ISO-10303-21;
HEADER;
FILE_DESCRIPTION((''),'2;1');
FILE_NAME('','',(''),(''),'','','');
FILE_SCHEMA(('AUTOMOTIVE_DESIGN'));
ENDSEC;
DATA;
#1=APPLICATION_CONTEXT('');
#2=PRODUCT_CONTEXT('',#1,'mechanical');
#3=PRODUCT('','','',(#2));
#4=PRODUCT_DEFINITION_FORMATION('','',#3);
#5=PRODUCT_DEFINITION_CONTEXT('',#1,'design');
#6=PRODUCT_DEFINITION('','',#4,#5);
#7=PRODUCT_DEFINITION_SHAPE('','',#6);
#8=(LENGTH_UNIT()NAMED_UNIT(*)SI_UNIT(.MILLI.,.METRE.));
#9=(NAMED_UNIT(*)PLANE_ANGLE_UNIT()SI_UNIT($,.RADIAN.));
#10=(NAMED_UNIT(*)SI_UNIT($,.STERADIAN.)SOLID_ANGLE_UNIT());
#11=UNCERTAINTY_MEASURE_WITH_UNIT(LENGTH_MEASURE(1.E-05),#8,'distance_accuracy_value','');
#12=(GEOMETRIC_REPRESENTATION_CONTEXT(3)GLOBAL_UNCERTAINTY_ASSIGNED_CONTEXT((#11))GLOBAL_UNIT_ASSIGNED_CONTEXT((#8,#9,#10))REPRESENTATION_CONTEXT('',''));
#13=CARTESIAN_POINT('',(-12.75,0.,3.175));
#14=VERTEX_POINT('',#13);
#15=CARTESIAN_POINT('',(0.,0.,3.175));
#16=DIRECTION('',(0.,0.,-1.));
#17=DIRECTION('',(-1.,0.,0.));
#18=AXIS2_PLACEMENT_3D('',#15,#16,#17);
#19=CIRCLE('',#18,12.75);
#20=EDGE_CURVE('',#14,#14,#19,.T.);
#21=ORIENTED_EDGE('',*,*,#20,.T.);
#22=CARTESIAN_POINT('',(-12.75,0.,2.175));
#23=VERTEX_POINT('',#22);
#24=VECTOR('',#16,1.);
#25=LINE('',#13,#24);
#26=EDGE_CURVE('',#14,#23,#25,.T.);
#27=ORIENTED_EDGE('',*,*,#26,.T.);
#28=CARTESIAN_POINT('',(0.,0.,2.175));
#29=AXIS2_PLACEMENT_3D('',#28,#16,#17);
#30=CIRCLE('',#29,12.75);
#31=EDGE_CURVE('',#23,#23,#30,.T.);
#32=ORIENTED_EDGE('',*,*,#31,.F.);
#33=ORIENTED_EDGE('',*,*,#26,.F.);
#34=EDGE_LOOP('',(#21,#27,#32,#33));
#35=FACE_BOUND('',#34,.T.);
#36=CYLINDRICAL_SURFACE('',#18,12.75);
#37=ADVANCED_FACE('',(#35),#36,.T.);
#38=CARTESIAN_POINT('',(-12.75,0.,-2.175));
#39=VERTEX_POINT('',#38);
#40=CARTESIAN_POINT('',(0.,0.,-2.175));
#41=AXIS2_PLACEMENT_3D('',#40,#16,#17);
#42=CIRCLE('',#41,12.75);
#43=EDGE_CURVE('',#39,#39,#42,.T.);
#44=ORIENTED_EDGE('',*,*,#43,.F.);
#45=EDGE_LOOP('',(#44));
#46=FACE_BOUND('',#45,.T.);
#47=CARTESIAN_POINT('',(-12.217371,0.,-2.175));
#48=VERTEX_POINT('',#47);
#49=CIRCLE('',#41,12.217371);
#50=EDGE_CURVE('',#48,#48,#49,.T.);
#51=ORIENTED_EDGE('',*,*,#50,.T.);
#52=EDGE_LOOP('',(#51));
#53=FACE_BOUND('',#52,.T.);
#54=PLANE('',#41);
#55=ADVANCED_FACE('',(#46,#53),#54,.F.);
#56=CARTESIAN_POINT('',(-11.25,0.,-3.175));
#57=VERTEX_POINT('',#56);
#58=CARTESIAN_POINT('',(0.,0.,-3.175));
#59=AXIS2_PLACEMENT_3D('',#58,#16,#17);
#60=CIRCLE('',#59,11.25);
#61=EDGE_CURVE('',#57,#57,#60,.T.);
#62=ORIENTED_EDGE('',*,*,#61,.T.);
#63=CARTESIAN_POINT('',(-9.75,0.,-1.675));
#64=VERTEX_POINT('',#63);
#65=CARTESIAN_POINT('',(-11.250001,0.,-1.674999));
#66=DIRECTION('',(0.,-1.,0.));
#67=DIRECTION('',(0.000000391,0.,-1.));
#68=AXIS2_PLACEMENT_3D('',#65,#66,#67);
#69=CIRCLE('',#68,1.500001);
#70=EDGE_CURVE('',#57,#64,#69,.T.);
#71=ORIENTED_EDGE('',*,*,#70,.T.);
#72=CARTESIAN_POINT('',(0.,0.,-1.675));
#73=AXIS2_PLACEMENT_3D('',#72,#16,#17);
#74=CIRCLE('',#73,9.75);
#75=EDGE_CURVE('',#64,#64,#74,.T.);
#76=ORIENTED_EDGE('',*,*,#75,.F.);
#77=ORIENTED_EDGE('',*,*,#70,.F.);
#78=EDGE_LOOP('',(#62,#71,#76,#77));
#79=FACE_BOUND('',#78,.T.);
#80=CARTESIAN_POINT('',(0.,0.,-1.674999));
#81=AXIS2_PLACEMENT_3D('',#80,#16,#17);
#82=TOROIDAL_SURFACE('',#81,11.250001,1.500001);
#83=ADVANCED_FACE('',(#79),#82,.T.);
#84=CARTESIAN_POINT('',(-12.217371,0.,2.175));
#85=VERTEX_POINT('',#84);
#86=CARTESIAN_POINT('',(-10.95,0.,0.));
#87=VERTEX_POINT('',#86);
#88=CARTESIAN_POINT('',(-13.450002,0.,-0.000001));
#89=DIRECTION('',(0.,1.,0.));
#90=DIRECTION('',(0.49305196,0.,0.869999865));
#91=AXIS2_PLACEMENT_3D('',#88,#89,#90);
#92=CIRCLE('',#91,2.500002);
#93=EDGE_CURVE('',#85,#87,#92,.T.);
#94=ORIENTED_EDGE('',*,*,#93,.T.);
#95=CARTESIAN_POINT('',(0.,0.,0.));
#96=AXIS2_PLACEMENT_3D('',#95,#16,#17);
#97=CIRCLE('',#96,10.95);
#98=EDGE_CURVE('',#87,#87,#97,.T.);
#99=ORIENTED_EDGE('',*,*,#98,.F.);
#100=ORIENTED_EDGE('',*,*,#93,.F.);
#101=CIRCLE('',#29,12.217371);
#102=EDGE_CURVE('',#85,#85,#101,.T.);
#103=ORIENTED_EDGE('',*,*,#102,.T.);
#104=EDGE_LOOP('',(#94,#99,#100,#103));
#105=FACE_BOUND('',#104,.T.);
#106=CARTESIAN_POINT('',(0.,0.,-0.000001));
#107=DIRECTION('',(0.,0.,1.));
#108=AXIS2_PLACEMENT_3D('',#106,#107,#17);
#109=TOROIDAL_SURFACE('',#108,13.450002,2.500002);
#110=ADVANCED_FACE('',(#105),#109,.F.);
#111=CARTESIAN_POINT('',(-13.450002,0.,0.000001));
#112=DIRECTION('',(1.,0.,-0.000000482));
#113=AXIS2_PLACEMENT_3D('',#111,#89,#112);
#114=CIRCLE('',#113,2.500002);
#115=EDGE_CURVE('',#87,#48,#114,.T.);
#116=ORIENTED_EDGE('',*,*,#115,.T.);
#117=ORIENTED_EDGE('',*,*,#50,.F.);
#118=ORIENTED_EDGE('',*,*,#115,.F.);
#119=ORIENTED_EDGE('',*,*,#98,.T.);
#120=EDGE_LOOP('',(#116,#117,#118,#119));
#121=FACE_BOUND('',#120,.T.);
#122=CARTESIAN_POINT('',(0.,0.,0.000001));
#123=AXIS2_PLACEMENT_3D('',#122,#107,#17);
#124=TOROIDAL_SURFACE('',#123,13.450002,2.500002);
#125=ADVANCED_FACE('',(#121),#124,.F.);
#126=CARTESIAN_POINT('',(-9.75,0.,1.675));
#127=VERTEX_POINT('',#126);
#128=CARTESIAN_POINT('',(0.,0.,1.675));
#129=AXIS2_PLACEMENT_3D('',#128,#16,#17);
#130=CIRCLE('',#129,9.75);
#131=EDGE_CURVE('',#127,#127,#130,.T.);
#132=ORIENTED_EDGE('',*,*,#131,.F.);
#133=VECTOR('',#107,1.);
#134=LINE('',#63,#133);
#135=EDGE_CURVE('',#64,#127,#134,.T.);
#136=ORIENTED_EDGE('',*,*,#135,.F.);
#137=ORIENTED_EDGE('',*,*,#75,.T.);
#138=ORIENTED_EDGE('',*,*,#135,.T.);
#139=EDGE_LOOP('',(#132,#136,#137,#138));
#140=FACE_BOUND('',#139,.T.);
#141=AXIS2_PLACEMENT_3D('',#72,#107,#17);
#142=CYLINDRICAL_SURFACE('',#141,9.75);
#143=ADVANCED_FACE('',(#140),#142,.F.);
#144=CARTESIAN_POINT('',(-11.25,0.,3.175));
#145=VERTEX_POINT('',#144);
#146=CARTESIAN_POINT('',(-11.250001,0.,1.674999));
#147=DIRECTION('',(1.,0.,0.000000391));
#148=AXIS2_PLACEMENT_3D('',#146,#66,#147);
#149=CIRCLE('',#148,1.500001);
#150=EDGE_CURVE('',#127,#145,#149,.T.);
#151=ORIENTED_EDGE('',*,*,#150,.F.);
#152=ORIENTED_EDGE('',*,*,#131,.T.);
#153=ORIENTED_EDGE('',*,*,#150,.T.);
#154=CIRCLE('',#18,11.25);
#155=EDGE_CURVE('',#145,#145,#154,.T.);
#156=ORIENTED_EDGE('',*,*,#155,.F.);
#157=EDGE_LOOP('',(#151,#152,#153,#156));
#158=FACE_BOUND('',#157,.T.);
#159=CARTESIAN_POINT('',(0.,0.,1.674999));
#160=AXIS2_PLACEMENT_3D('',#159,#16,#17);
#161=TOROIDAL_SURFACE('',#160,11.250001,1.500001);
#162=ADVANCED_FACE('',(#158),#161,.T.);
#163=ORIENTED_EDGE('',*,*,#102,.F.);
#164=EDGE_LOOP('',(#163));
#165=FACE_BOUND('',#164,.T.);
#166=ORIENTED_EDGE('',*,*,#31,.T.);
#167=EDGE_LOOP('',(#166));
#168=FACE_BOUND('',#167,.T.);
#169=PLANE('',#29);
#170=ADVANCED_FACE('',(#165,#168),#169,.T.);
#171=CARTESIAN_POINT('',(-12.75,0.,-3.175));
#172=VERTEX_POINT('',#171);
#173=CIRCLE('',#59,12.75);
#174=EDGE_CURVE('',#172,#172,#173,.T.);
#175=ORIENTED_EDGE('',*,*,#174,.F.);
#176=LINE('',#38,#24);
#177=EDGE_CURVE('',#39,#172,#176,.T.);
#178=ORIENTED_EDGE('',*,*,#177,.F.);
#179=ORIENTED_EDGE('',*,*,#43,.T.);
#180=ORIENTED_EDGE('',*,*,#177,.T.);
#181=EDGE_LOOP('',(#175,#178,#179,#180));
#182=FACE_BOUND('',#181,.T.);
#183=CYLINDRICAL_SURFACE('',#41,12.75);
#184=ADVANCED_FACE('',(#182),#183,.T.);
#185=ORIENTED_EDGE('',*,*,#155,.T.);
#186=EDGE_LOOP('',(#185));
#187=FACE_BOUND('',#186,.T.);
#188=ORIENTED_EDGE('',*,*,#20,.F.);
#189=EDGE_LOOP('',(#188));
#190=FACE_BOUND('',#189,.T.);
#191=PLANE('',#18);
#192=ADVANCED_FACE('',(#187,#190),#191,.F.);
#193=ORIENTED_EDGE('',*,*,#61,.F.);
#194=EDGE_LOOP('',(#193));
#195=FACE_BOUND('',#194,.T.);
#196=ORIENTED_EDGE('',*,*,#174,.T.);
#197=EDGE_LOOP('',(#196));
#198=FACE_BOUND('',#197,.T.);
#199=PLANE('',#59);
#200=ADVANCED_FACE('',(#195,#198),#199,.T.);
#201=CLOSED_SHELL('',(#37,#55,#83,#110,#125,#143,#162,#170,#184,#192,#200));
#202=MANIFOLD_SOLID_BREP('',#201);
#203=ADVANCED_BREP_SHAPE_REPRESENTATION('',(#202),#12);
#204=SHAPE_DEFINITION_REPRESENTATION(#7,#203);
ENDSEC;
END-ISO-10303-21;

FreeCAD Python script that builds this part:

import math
import FreeCAD as App
import Part
import Sketcher
Q = App.Units.Quantity

doc = App.newDocument("Part")
body = doc.addObject("PartDesign::Body", "Body")

sketch1 = doc.addObject("Sketcher::SketchObject", "Sketch")
body.addObject(sketch1)
sketch1.AttachmentSupport = (doc.XZ_Plane, [""])
sketch1.MapMode = "FlatFace"
sketch1.addGeometry([
    Part.LineSegment(App.Vector(-9.8, -1.7, 0), App.Vector(-9.8, 1.7, 0)),
    Part.ArcOfCircle(Part.Circle(App.Vector(-11.3, 1.7, 0), App.Vector(0, 0, 1), 1.5), math.radians(0), math.radians(90)),
    Part.LineSegment(App.Vector(-11.2, 3.2, 0), App.Vector(-12.8, 3.2, 0)),
    Part.LineSegment(App.Vector(-12.8, 3.2, 0), App.Vector(-12.8, 2.2, 0)),
    Part.LineSegment(App.Vector(-12.8, 2.2, 0), App.Vector(-12.2, 2.2, 0)),
    Part.ArcOfCircle(Part.Circle(App.Vector(-13.5, 0, 0), App.Vector(0, 0, 1), 2.5), math.radians(0), math.radians(60)),
    Part.ArcOfCircle(Part.Circle(App.Vector(-13.5, 0, 0), App.Vector(0, 0, 1), 2.5), math.radians(-60), math.radians(0)),
    Part.LineSegment(App.Vector(-12.2, -2.2, 0), App.Vector(-12.8, -2.2, 0)),
    Part.LineSegment(App.Vector(-12.8, -2.2, 0), App.Vector(-12.8, -3.2, 0)),
    Part.LineSegment(App.Vector(-12.8, -3.2, 0), App.Vector(-11.2, -3.2, 0)),
    Part.ArcOfCircle(Part.Circle(App.Vector(-11.3, -1.7, 0), App.Vector(0, 0, 1), 1.5), math.radians(-90), math.radians(0)),
], False)
sketch1.addConstraint([
    Sketcher.Constraint("Tangent", 0, 2, 1, 1),
    Sketcher.Constraint("Tangent", 1, 2, 2, 1),
    Sketcher.Constraint("Coincident", 2, 2, 3, 1),
    Sketcher.Constraint("Coincident", 3, 2, 4, 1),
    Sketcher.Constraint("Coincident", 4, 2, 5, 2),
    Sketcher.Constraint("Tangent", 5, 1, 6, 2),
    Sketcher.Constraint("Coincident", 6, 1, 7, 1),
    Sketcher.Constraint("Coincident", 7, 2, 8, 1),
    Sketcher.Constraint("Coincident", 8, 2, 9, 1),
    Sketcher.Constraint("Tangent", 9, 2, 10, 1),
    Sketcher.Constraint("Tangent", 10, 2, 0, 1),
    Sketcher.Constraint("Vertical", 0),
    Sketcher.Constraint("Horizontal", 2),
    Sketcher.Constraint("Vertical", 3),
    Sketcher.Constraint("Horizontal", 4),
    Sketcher.Constraint("Horizontal", 7),
    Sketcher.Constraint("Vertical", 8),
    Sketcher.Constraint("Horizontal", 9),
    Sketcher.Constraint("Equal", 5, 6),
    Sketcher.Constraint("Equal", 1, 10),
    Sketcher.Constraint("Symmetric", 4, 2, 6, 1, -1),
    Sketcher.Constraint("Symmetric", 2, 2, 8, 2, -1),
    Sketcher.Constraint("PointOnObject", 5, 1, -1),
    Sketcher.Constraint("Radius", 1, Q("1.500001 mm")),
    Sketcher.Constraint("Radius", 5, Q("2.500002 mm")),
    Sketcher.Constraint("DistanceY", 3, 2, 3, 1, Q("1 mm")),
    Sketcher.Constraint("DistanceX", 2, 2, 2, 1, Q("1.5 mm")),
    Sketcher.Constraint("DistanceY", 0, 1, 0, 2, Q("3.35 mm")),
    Sketcher.Constraint("DistanceX", 5, 3, 1, 3, Q("2.200001 mm")),
    Sketcher.Constraint("DistanceX", 1, 3, -1, 1, Q("11.250001 mm")),
])
revolution = doc.addObject("PartDesign::Revolution", "Revolution")
body.addObject(revolution)
revolution.Profile = sketch1
revolution.ReferenceAxis = (sketch1, ["V_Axis"])
revolution.Angle = 360

doc.recompute()
